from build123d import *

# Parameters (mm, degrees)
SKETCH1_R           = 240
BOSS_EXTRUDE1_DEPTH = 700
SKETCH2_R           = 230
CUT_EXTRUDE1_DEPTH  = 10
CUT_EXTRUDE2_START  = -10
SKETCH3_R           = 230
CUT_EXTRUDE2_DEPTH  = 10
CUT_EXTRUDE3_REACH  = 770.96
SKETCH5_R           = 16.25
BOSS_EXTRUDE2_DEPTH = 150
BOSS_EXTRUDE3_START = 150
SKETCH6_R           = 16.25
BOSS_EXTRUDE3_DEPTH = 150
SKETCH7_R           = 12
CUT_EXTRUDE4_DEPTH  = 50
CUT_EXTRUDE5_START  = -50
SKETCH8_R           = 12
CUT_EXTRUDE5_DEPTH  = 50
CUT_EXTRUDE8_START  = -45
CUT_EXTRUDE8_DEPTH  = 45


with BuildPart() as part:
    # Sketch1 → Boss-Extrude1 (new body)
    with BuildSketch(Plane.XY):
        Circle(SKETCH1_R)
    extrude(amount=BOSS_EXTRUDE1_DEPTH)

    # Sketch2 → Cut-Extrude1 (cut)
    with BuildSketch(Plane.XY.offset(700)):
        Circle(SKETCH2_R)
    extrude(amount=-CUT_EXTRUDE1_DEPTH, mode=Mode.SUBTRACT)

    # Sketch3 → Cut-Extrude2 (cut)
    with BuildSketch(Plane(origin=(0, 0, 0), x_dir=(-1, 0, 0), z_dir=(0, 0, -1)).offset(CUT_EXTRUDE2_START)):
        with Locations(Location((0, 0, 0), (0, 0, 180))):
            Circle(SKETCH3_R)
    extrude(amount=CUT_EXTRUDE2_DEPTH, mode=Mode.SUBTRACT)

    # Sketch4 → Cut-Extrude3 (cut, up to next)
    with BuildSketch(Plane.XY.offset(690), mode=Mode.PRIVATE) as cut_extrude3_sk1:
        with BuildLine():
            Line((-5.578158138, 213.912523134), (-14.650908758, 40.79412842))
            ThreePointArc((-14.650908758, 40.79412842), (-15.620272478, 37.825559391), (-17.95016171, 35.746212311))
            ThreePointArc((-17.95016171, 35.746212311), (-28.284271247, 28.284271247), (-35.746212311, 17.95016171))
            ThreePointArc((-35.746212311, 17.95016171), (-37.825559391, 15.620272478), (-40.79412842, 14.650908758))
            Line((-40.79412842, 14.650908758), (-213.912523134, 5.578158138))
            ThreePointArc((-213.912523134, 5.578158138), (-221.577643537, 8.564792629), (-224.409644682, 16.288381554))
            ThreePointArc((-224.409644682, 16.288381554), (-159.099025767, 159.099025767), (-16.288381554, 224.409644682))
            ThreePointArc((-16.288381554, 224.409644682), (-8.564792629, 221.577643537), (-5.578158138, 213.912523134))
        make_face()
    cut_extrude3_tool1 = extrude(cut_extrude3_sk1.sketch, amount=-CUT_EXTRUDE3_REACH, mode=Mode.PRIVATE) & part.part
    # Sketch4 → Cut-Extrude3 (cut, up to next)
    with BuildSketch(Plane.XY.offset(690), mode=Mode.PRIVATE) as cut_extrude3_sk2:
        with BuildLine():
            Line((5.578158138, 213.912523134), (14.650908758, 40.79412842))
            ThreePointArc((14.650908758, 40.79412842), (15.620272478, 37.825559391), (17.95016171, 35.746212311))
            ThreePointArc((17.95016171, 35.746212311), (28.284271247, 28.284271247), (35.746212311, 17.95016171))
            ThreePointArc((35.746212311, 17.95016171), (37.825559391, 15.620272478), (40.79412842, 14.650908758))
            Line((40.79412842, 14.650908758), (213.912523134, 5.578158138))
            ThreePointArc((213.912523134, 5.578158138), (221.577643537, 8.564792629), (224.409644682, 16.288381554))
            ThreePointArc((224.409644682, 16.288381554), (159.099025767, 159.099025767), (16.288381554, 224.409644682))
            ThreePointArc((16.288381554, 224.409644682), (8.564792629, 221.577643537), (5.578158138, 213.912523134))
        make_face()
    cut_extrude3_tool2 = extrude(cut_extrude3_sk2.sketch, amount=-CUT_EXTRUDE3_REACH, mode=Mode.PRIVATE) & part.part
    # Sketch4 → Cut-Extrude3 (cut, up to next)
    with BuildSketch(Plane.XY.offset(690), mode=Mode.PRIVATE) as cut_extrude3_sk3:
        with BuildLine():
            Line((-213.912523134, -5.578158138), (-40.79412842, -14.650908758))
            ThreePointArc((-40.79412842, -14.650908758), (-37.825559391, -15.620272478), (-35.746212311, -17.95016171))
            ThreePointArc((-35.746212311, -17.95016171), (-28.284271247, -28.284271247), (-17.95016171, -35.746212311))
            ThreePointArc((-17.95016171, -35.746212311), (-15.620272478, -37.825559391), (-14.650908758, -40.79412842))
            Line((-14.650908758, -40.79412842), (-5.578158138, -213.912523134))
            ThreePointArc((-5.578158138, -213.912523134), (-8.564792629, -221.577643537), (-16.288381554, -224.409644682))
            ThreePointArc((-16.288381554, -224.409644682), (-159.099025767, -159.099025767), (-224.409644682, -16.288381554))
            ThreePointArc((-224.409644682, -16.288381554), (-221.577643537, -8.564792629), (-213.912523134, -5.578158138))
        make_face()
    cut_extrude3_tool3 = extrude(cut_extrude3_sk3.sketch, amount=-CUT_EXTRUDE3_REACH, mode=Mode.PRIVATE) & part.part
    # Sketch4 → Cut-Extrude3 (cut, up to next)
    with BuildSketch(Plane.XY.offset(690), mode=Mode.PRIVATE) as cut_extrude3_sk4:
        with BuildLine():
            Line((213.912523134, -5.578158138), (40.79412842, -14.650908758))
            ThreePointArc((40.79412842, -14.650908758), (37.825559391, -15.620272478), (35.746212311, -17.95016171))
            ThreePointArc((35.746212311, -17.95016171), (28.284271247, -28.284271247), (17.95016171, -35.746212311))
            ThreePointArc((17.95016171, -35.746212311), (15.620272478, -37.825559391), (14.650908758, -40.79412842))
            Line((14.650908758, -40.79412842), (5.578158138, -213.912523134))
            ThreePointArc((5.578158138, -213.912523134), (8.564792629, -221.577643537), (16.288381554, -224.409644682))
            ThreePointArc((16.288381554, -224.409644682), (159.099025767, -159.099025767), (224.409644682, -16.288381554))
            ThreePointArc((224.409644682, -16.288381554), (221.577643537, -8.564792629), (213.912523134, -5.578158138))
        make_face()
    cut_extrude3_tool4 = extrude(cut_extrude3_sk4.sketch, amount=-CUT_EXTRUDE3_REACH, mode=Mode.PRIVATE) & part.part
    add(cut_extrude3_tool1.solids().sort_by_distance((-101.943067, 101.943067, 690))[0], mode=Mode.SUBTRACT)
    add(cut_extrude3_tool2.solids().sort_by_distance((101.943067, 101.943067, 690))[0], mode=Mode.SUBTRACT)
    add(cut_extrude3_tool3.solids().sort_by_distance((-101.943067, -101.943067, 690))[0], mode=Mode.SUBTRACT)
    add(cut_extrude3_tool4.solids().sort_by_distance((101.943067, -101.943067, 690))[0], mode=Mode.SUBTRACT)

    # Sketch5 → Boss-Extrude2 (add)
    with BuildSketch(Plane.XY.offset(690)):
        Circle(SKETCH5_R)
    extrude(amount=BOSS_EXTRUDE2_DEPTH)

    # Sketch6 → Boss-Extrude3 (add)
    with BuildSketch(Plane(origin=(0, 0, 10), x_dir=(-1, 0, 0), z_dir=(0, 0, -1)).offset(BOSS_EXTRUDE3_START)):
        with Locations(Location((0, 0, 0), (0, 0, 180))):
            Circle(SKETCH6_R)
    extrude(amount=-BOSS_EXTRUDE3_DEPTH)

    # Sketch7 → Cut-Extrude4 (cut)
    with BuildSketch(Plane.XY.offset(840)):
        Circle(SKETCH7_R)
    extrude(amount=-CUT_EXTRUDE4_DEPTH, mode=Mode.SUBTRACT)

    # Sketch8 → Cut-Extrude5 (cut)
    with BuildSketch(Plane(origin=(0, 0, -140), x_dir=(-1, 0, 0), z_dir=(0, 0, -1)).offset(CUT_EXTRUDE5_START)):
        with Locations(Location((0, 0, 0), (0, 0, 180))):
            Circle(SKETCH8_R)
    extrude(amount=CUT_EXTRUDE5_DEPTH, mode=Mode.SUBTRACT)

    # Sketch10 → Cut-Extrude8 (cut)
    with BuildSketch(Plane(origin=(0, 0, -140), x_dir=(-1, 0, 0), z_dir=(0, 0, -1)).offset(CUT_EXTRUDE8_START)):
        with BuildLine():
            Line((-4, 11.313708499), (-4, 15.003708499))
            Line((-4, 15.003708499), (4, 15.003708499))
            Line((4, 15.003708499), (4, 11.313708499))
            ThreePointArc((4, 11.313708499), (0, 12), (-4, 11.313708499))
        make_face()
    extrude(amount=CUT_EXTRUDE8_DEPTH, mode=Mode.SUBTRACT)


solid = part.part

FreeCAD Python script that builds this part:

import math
import FreeCAD as App
import Part
import Sketcher

V = App.Vector
Q = App.Units.Quantity

doc = App.newDocument("Part")
body = doc.addObject("PartDesign::Body", "Body")

sketch1 = doc.addObject("Sketcher::SketchObject", "Sketch")
body.addObject(sketch1)
sketch1.AttachmentSupport = (doc.XY_Plane, [""])
sketch1.MapMode = "FlatFace"
sketch1.addGeometry(Part.Circle(V(0, 0, 0), V(0, 0, 1), 240), False)
sketch1.addConstraint(Sketcher.Constraint("Coincident", 0, 3, -1, 1))
sketch1.addConstraint(Sketcher.Constraint("Diameter", 0, Q("480 mm")))
pad1 = doc.addObject("PartDesign::Pad", "Pad")
body.addObject(pad1)
pad1.Profile = sketch1
pad1.Length = 700

sketch2 = doc.addObject("Sketcher::SketchObject", "Sketch001")
body.addObject(sketch2)
sketch2.AttachmentSupport = (doc.XY_Plane, [""])
sketch2.MapMode = "FlatFace"
sketch2.AttachmentOffset = App.Placement(V(0, 0, 700), App.Rotation())
sketch2.addGeometry(Part.Circle(V(0, 0, 0), V(0, 0, 1), 230), False)
sketch2.addConstraint(Sketcher.Constraint("Coincident", 0, 3, -1, 1))
sketch2.addConstraint(Sketcher.Constraint("Diameter", 0, Q("460 mm")))
pocket1 = doc.addObject("PartDesign::Pocket", "Pocket")
body.addObject(pocket1)
pocket1.Profile = sketch2
pocket1.Length = 10

sketch3 = doc.addObject("Sketcher::SketchObject", "Sketch002")
body.addObject(sketch3)
sketch3.AttachmentSupport = (doc.XY_Plane, [""])
sketch3.MapMode = "FlatFace"
sketch3.AttachmentOffset = App.Placement(V(0, 0, 10), App.Rotation())
sketch3.addGeometry(Part.Circle(V(0, 0, 0), V(0, 0, 1), 230), False)
sketch3.addConstraint(Sketcher.Constraint("Coincident", 0, 3, -1, 1))
sketch3.addConstraint(Sketcher.Constraint("Diameter", 0, Q("460 mm")))
pocket2 = doc.addObject("PartDesign::Pocket", "Pocket001")
body.addObject(pocket2)
pocket2.Profile = sketch3
pocket2.Length = 10

sketch4 = doc.addObject("Sketcher::SketchObject", "Sketch003")
body.addObject(sketch4)
sketch4.AttachmentSupport = (doc.XY_Plane, [""])
sketch4.MapMode = "FlatFace"
sketch4.AttachmentOffset = App.Placement(V(0, 0, 690), App.Rotation())
sketch4.addGeometry(Part.LineSegment(V(-15, 41, 0), V(-6, 214, 0)), False)
sketch4.addGeometry(Part.ArcOfCircle(Part.Circle(V(-16, 214, 0), V(0, 0, 1), 10), math.radians(-3), math.radians(94)), False)
sketch4.addGeometry(Part.ArcOfCircle(Part.Circle(V(0, 0, 0), V(0, 0, 1), 225), math.radians(94), math.radians(176)), False)
sketch4.addGeometry(Part.ArcOfCircle(Part.Circle(V(-214, 16, 0), V(0, 0, 1), 10), math.radians(176), math.radians(273)), False)
sketch4.addGeometry(Part.LineSegment(V(-214, 6, 0), V(-41, 15, 0)), False)
sketch4.addGeometry(Part.ArcOfCircle(Part.Circle(V(-41, 21, 0), V(0, 0, 1), 6), math.radians(-87), math.radians(-27)), False)
sketch4.addGeometry(Part.ArcOfCircle(Part.Circle(V(0, 0, 0), V(0, 0, 1), 40), math.radians(117), math.radians(153)), False)
sketch4.addGeometry(Part.ArcOfCircle(Part.Circle(V(-21, 41, 0), V(0, 0, 1), 6), math.radians(-63), math.radians(-3)), False)
sketch4.addConstraint(Sketcher.Constraint("Tangent", 0, 2, 1, 1))
sketch4.addConstraint(Sketcher.Constraint("Tangent", 1, 2, 2, 1))
sketch4.addConstraint(Sketcher.Constraint("Tangent", 2, 2, 3, 1))
sketch4.addConstraint(Sketcher.Constraint("Tangent", 3, 2, 4, 1))
sketch4.addConstraint(Sketcher.Constraint("Tangent", 4, 2, 5, 1))
sketch4.addConstraint(Sketcher.Constraint("Tangent", 5, 2, 6, 2))
sketch4.addConstraint(Sketcher.Constraint("Tangent", 6, 1, 7, 1))
sketch4.addConstraint(Sketcher.Constraint("Tangent", 7, 2, 0, 1))
sketch4.addConstraint(Sketcher.Constraint("Coincident", 2, 3, -1, 1))
sketch4.addConstraint(Sketcher.Constraint("Coincident", 6, 3, -1, 1))
sketch4.addConstraint(Sketcher.Constraint("Equal", 1, 3))
sketch4.addConstraint(Sketcher.Constraint("Equal", 5, 7))
sketch4.addConstraint(Sketcher.Constraint("Equal", 0, 4))
sketch4.addConstraint(Sketcher.Constraint("Radius", 1, Q("10 mm")))
sketch4.addConstraint(Sketcher.Constraint("Radius", 2, Q("225 mm")))
sketch4.addConstraint(Sketcher.Constraint("Radius", 5, Q("6 mm")))
sketch4.addConstraint(Sketcher.Constraint("Radius", 6, Q("40 mm")))
sketch4.addConstraint(Sketcher.Constraint("Angle", 0, Q("87 deg")))
sketch4.addConstraint(Sketcher.Constraint("Angle", 4, Q("3 deg")))
sketch4.addConstraint(Sketcher.Constraint("DistanceY", 7, 3, 1, 2, Q("183.301501 mm")))
pocket3 = doc.addObject("PartDesign::Pocket", "Pocket002")
body.addObject(pocket3)
pocket3.Profile = sketch4
pocket3.Type = "UpToFirst"

sketch5 = doc.addObject("Sketcher::SketchObject", "Sketch004")
body.addObject(sketch5)
sketch5.AttachmentSupport = (doc.XY_Plane, [""])
sketch5.MapMode = "FlatFace"
sketch5.AttachmentOffset = App.Placement(V(0, 0, 690), App.Rotation())
sketch5.addGeometry(Part.LineSegment(V(6, 214, 0), V(15, 41, 0)), False)
sketch5.addGeometry(Part.ArcOfCircle(Part.Circle(V(21, 41, 0), V(0, 0, 1), 6), math.radians(-177), math.radians(-117)), False)
sketch5.addGeometry(Part.ArcOfCircle(Part.Circle(V(0, 0, 0), V(0, 0, 1), 40), math.radians(27), math.radians(63)), False)
sketch5.addGeometry(Part.ArcOfCircle(Part.Circle(V(41, 21, 0), V(0, 0, 1), 6), math.radians(-153), math.radians(-93)), False)
sketch5.addGeometry(Part.LineSegment(V(41, 15, 0), V(214, 6, 0)), False)
sketch5.addGeometry(Part.ArcOfCircle(Part.Circle(V(214, 16, 0), V(0, 0, 1), 10), math.radians(-93), math.radians(4)), False)
sketch5.addGeometry(Part.ArcOfCircle(Part.Circle(V(0, 0, 0), V(0, 0, 1), 225), math.radians(4), math.radians(86)), False)
sketch5.addGeometry(Part.ArcOfCircle(Part.Circle(V(16, 214, 0), V(0, 0, 1), 10), math.radians(86), math.radians(183)), False)
sketch5.addConstraint(Sketcher.Constraint("Tangent", 0, 2, 1, 1))
sketch5.addConstraint(Sketcher.Constraint("Tangent", 1, 2, 2, 2))
sketch5.addConstraint(Sketcher.Constraint("Tangent", 2, 1, 3, 1))
sketch5.addConstraint(Sketcher.Constraint("Tangent", 3, 2, 4, 1))
sketch5.addConstraint(Sketcher.Constraint("Tangent", 4, 2, 5, 1))
sketch5.addConstraint(Sketcher.Constraint("Tangent", 5, 2, 6, 1))
sketch5.addConstraint(Sketcher.Constraint("Tangent", 6, 2, 7, 1))
sketch5.addConstraint(Sketcher.Constraint("Tangent", 7, 2, 0, 1))
sketch5.addConstraint(Sketcher.Constraint("Coincident", 2, 3, -1, 1))
sketch5.addConstraint(Sketcher.Constraint("Coincident", 6, 3, -1, 1))
sketch5.addConstraint(Sketcher.Constraint("Equal", 1, 3))
sketch5.addConstraint(Sketcher.Constraint("Equal", 5, 7))
sketch5.addConstraint(Sketcher.Constraint("Equal", 0, 4))
sketch5.addConstraint(Sketcher.Constraint("Radius", 1, Q("6 mm")))
sketch5.addConstraint(Sketcher.Constraint("Radius", 2, Q("40 mm")))
sketch5.addConstraint(Sketcher.Constraint("Radius", 5, Q("10 mm")))
sketch5.addConstraint(Sketcher.Constraint("Radius", 6, Q("225 mm")))
sketch5.addConstraint(Sketcher.Constraint("Angle", 0, Q("-87 deg")))
sketch5.addConstraint(Sketcher.Constraint("Angle", 4, Q("-3 deg")))
sketch5.addConstraint(Sketcher.Constraint("DistanceX", 3, 3, 5, 2, Q("183.301501 mm")))
pocket4 = doc.addObject("PartDesign::Pocket", "Pocket003")
body.addObject(pocket4)
pocket4.Profile = sketch5
pocket4.Type = "UpToFirst"

sketch6 = doc.addObject("Sketcher::SketchObject", "Sketch005")
body.addObject(sketch6)
sketch6.AttachmentSupport = (doc.XY_Plane, [""])
sketch6.MapMode = "FlatFace"
sketch6.AttachmentOffset = App.Placement(V(0, 0, 690), App.Rotation())
sketch6.addGeometry(Part.LineSegment(V(-41, -15, 0), V(-214, -6, 0)), False)
sketch6.addGeometry(Part.ArcOfCircle(Part.Circle(V(-214, -16, 0), V(0, 0, 1), 10), math.radians(87), math.radians(184)), False)
sketch6.addGeometry(Part.ArcOfCircle(Part.Circle(V(0, 0, 0), V(0, 0, 1), 225), math.radians(-176), math.radians(-94)), False)
sketch6.addGeometry(Part.ArcOfCircle(Part.Circle(V(-16, -214, 0), V(0, 0, 1), 10), math.radians(-94), math.radians(3)), False)
sketch6.addGeometry(Part.LineSegment(V(-6, -214, 0), V(-15, -41, 0)), False)
sketch6.addGeometry(Part.ArcOfCircle(Part.Circle(V(-21, -41, 0), V(0, 0, 1), 6), math.radians(3), math.radians(63)), False)
sketch6.addGeometry(Part.ArcOfCircle(Part.Circle(V(0, 0, 0), V(0, 0, 1), 40), math.radians(-153), math.radians(-117)), False)
sketch6.addGeometry(Part.ArcOfCircle(Part.Circle(V(-41, -21, 0), V(0, 0, 1), 6), math.radians(27), math.radians(87)), False)
sketch6.addConstraint(Sketcher.Constraint("Tangent", 0, 2, 1, 1))
sketch6.addConstraint(Sketcher.Constraint("Tangent", 1, 2, 2, 1))
sketch6.addConstraint(Sketcher.Constraint("Tangent", 2, 2, 3, 1))
sketch6.addConstraint(Sketcher.Constraint("Tangent", 3, 2, 4, 1))
sketch6.addConstraint(Sketcher.Constraint("Tangent", 4, 2, 5, 1))
sketch6.addConstraint(Sketcher.Constraint("Tangent", 5, 2, 6, 2))
sketch6.addConstraint(Sketcher.Constraint("Tangent", 6, 1, 7, 1))
sketch6.addConstraint(Sketcher.Constraint("Tangent", 7, 2, 0, 1))
sketch6.addConstraint(Sketcher.Constraint("Coincident", 2, 3, -1, 1))
sketch6.addConstraint(Sketcher.Constraint("Coincident", 6, 3, -1, 1))
sketch6.addConstraint(Sketcher.Constraint("Equal", 1, 3))
sketch6.addConstraint(Sketcher.Constraint("Equal", 5, 7))
sketch6.addConstraint(Sketcher.Constraint("Equal", 0, 4))
sketch6.addConstraint(Sketcher.Constraint("Radius", 1, Q("10 mm")))
sketch6.addConstraint(Sketcher.Constraint("Radius", 2, Q("225 mm")))
sketch6.addConstraint(Sketcher.Constraint("Radius", 5, Q("6 mm")))
sketch6.addConstraint(Sketcher.Constraint("Radius", 6, Q("40 mm")))
sketch6.addConstraint(Sketcher.Constraint("Angle", 0, Q("177 deg")))
sketch6.addConstraint(Sketcher.Constraint("Angle", 4, Q("93 deg")))
sketch6.addConstraint(Sketcher.Constraint("DistanceX", 1, 2, 7, 3, Q("183.301501 mm")))
pocket5 = doc.addObject("PartDesign::Pocket", "Pocket004")
body.addObject(pocket5)
pocket5.Profile = sketch6
pocket5.Type = "UpToFirst"

sketch7 = doc.addObject("Sketcher::SketchObject", "Sketch006")
body.addObject(sketch7)
sketch7.AttachmentSupport = (doc.XY_Plane, [""])
sketch7.MapMode = "FlatFace"
sketch7.AttachmentOffset = App.Placement(V(0, 0, 690), App.Rotation())
sketch7.addGeometry(Part.LineSegment(V(214, -6, 0), V(41, -15, 0)), False)
sketch7.addGeometry(Part.ArcOfCircle(Part.Circle(V(41, -21, 0), V(0, 0, 1), 6), math.radians(93), math.radians(153)), False)
sketch7.addGeometry(Part.ArcOfCircle(Part.Circle(V(0, 0, 0), V(0, 0, 1), 40), math.radians(-63), math.radians(-27)), False)
sketch7.addGeometry(Part.ArcOfCircle(Part.Circle(V(21, -41, 0), V(0, 0, 1), 6), math.radians(117), math.radians(177)), False)
sketch7.addGeometry(Part.LineSegment(V(15, -41, 0), V(6, -214, 0)), False)
sketch7.addGeometry(Part.ArcOfCircle(Part.Circle(V(16, -214, 0), V(0, 0, 1), 10), math.radians(177), math.radians(274)), False)
sketch7.addGeometry(Part.ArcOfCircle(Part.Circle(V(0, 0, 0), V(0, 0, 1), 225), math.radians(-86), math.radians(-4)), False)
sketch7.addGeometry(Part.ArcOfCircle(Part.Circle(V(214, -16, 0), V(0, 0, 1), 10), math.radians(-4), math.radians(93)), False)
sketch7.addConstraint(Sketcher.Constraint("Tangent", 0, 2, 1, 1))
sketch7.addConstraint(Sketcher.Constraint("Tangent", 1, 2, 2, 2))
sketch7.addConstraint(Sketcher.Constraint("Tangent", 2, 1, 3, 1))
sketch7.addConstraint(Sketcher.Constraint("Tangent", 3, 2, 4, 1))
sketch7.addConstraint(Sketcher.Constraint("Tangent", 4, 2, 5, 1))
sketch7.addConstraint(Sketcher.Constraint("Tangent", 5, 2, 6, 1))
sketch7.addConstraint(Sketcher.Constraint("Tangent", 6, 2, 7, 1))
sketch7.addConstraint(Sketcher.Constraint("Tangent", 7, 2, 0, 1))
sketch7.addConstraint(Sketcher.Constraint("Coincident", 2, 3, -1, 1))
sketch7.addConstraint(Sketcher.Constraint("Coincident", 6, 3, -1, 1))
sketch7.addConstraint(Sketcher.Constraint("Equal", 1, 3))
sketch7.addConstraint(Sketcher.Constraint("Equal", 5, 7))
sketch7.addConstraint(Sketcher.Constraint("Equal", 0, 4))
sketch7.addConstraint(Sketcher.Constraint("Radius", 1, Q("6 mm")))
sketch7.addConstraint(Sketcher.Constraint("Radius", 2, Q("40 mm")))
sketch7.addConstraint(Sketcher.Constraint("Radius", 5, Q("10 mm")))
sketch7.addConstraint(Sketcher.Constraint("Radius", 6, Q("225 mm")))
sketch7.addConstraint(Sketcher.Constraint("Angle", 0, Q("-177 deg")))
sketch7.addConstraint(Sketcher.Constraint("Angle", 4, Q("-93 deg")))
sketch7.addConstraint(Sketcher.Constraint("DistanceY", 5, 2, 3, 3, Q("183.301501 mm")))
pocket6 = doc.addObject("PartDesign::Pocket", "Pocket005")
body.addObject(pocket6)
pocket6.Profile = sketch7
pocket6.Type = "UpToFirst"

sketch8 = doc.addObject("Sketcher::SketchObject", "Sketch007")
body.addObject(sketch8)
sketch8.AttachmentSupport = (doc.XY_Plane, [""])
sketch8.MapMode = "FlatFace"
sketch8.AttachmentOffset = App.Placement(V(0, 0, 690), App.Rotation())
sketch8.addGeometry(Part.Circle(V(0, 0, 0), V(0, 0, 1), 16), False)
sketch8.addConstraint(Sketcher.Constraint("Coincident", 0, 3, -1, 1))
sketch8.addConstraint(Sketcher.Constraint("Diameter", 0, Q("32.5 mm")))
pad2 = doc.addObject("PartDesign::Pad", "Pad001")
body.addObject(pad2)
pad2.Profile = sketch8
pad2.Length = 150

sketch9 = doc.addObject("Sketcher::SketchObject", "Sketch008")
body.addObject(sketch9)
sketch9.AttachmentSupport = (doc.XY_Plane, [""])
sketch9.MapMode = "FlatFace"
sketch9.AttachmentOffset = App.Placement(V(0, 0, -140), App.Rotation())
sketch9.addGeometry(Part.Circle(V(0, 0, 0), V(0, 0, 1), 16), False)
sketch9.addConstraint(Sketcher.Constraint("Coincident", 0, 3, -1, 1))
sketch9.addConstraint(Sketcher.Constraint("Diameter", 0, Q("32.5 mm")))
pad3 = doc.addObject("PartDesign::Pad", "Pad002")
body.addObject(pad3)
pad3.Profile = sketch9
pad3.Length = 150

sketch10 = doc.addObject("Sketcher::SketchObject", "Sketch009")
body.addObject(sketch10)
sketch10.AttachmentSupport = (doc.XY_Plane, [""])
sketch10.MapMode = "FlatFace"
sketch10.AttachmentOffset = App.Placement(V(0, 0, 840), App.Rotation())
sketch10.addGeometry(Part.Circle(V(0, 0, 0), V(0, 0, 1), 12), False)
sketch10.addConstraint(Sketcher.Constraint("Coincident", 0, 3, -1, 1))
sketch10.addConstraint(Sketcher.Constraint("Diameter", 0, Q("24 mm")))
pocket7 = doc.addObject("PartDesign::Pocket", "Pocket006")
body.addObject(pocket7)
pocket7.Profile = sketch10
pocket7.Length = 50

sketch11 = doc.addObject("Sketcher::SketchObject", "Sketch010")
body.addObject(sketch11)
sketch11.AttachmentSupport = (doc.XY_Plane, [""])
sketch11.MapMode = "FlatFace"
sketch11.AttachmentOffset = App.Placement(V(0, 0, -90), App.Rotation())
sketch11.addGeometry(Part.Circle(V(0, 0, 0), V(0, 0, 1), 12), False)
sketch11.addConstraint(Sketcher.Constraint("Coincident", 0, 3, -1, 1))
sketch11.addConstraint(Sketcher.Constraint("Diameter", 0, Q("24 mm")))
pocket8 = doc.addObject("PartDesign::Pocket", "Pocket007")
body.addObject(pocket8)
pocket8.Profile = sketch11
pocket8.Length = 50

sketch12 = doc.addObject("Sketcher::SketchObject", "Sketch011")
body.addObject(sketch12)
sketch12.AttachmentSupport = (doc.XY_Plane, [""])
sketch12.MapMode = "FlatFace"
sketch12.AttachmentOffset = App.Placement(V(0, 0, -95), App.Rotation())
sketch12.addGeometry(Part.LineSegment(V(4, 15, 0), V(4, 11.3, 0)), False)
sketch12.addGeometry(Part.ArcOfCircle(Part.Circle(V(0, 0, 0), V(0, 0, 1), 12), math.radians(71), math.radians(109)), False)
sketch12.addGeometry(Part.LineSegment(V(-4, 11.3, 0), V(-4, 15, 0)), False)
sketch12.addGeometry(Part.LineSegment(V(-4, 15, 0), V(4, 15, 0)), False)
sketch12.addConstraint(Sketcher.Constraint("Coincident", 0, 2, 1, 1))
sketch12.addConstraint(Sketcher.Constraint("Coincident", 1, 2, 2, 1))
sketch12.addConstraint(Sketcher.Constraint("Coincident", 2, 2, 3, 1))
sketch12.addConstraint(Sketcher.Constraint("Coincident", 3, 2, 0, 1))
sketch12.addConstraint(Sketcher.Constraint("Vertical", 0))
sketch12.addConstraint(Sketcher.Constraint("Vertical", 2))
sketch12.addConstraint(Sketcher.Constraint("Horizontal", 3))
sketch12.addConstraint(Sketcher.Constraint("Coincident", 1, 3, -1, 1))
sketch12.addConstraint(Sketcher.Constraint("Horizontal", 0, 2, 1, 2))
sketch12.addConstraint(Sketcher.Constraint("Radius", 1, Q("12 mm")))
sketch12.addConstraint(Sketcher.Constraint("DistanceX", 3, 1, 3, 2, Q("8 mm")))
sketch12.addConstraint(Sketcher.Constraint("DistanceY", 0, 2, 0, 1, Q("3.69 mm")))
pocket9 = doc.addObject("PartDesign::Pocket", "Pocket008")
body.addObject(pocket9)
pocket9.Profile = sketch12
pocket9.Length = 45

doc.recompute()
